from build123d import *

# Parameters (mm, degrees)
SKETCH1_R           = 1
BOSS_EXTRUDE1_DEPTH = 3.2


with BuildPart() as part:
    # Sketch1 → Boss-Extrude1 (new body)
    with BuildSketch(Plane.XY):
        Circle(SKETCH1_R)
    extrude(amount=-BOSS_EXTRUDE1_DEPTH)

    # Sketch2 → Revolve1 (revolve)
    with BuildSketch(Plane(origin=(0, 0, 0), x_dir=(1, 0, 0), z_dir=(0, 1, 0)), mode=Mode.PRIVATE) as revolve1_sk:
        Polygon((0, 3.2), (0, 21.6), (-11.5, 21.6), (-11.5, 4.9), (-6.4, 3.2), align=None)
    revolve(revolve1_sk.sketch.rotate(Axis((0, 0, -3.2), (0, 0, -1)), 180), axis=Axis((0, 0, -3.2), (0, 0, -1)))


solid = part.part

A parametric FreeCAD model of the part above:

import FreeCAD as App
import Part
import Sketcher

V = App.Vector


def add_polygon(sketch, points):
    """Adds a closed chain of lines whose ends are joined by coincident constraints."""
    first, n = sketch.GeometryCount, len(points)
    for a, b in zip(points, points[1:] + points[:1]):
        sketch.addGeometry(Part.LineSegment(App.Vector(*a, 0), App.Vector(*b, 0)), False)
    for i in range(n):
        sketch.addConstraint(Sketcher.Constraint("Coincident", first + i, 2, first + (i + 1) % n, 1))

doc = App.newDocument("Part")
body = doc.addObject("PartDesign::Body", "Body")

sketch1 = doc.addObject("Sketcher::SketchObject", "Sketch")
body.addObject(sketch1)
sketch1.AttachmentSupport = (doc.XY_Plane, [""])
sketch1.MapMode = "FlatFace"
sketch1.addGeometry(Part.Circle(V(0, 0, 0), V(0, 0, 1), 1), False)
sketch1.addConstraint(Sketcher.Constraint("Coincident", 0, 3, -1, 1))
sketch1.addConstraint(Sketcher.Constraint("Diameter", 0, 2.0))
pad1 = doc.addObject("PartDesign::Pad", "Pad")
body.addObject(pad1)
pad1.Profile = sketch1
pad1.Length = 3.2
pad1.Reversed = True

sketch2 = doc.addObject("Sketcher::SketchObject", "Sketch001")
body.addObject(sketch2)
sketch2.AttachmentSupport = (doc.XZ_Plane, [""])
sketch2.MapMode = "FlatFace"
add_polygon(sketch2, [(0, -3.2), (0, -21.6), (-11.5, -21.6), (-11.5, -4.9), (-6.4, -3.2)])
sketch2.addConstraint(Sketcher.Constraint("Vertical", 0))
sketch2.addConstraint(Sketcher.Constraint("Horizontal", 1))
sketch2.addConstraint(Sketcher.Constraint("Vertical", 2))
sketch2.addConstraint(Sketcher.Constraint("Horizontal", 4))
sketch2.addConstraint(Sketcher.Constraint("PointOnObject", 0, 2, -2))
sketch2.addConstraint(Sketcher.Constraint("DistanceX", 1, 2, 1, 1, 11.5))
sketch2.addConstraint(Sketcher.Constraint("DistanceX", 4, 1, 4, 2, 6.4))
sketch2.addConstraint(Sketcher.Constraint("DistanceY", 0, 2, 0, 1, 18.4))
sketch2.addConstraint(Sketcher.Constraint("DistanceY", 2, 1, 2, 2, 16.7))
sketch2.addConstraint(Sketcher.Constraint("DistanceY", 0, 2, -1, 1, 21.6))
revolution = doc.addObject("PartDesign::Revolution", "Revolution")
body.addObject(revolution)
revolution.Profile = sketch2
revolution.ReferenceAxis = (sketch2, ["V_Axis"])
revolution.Angle = 360

doc.recompute()
